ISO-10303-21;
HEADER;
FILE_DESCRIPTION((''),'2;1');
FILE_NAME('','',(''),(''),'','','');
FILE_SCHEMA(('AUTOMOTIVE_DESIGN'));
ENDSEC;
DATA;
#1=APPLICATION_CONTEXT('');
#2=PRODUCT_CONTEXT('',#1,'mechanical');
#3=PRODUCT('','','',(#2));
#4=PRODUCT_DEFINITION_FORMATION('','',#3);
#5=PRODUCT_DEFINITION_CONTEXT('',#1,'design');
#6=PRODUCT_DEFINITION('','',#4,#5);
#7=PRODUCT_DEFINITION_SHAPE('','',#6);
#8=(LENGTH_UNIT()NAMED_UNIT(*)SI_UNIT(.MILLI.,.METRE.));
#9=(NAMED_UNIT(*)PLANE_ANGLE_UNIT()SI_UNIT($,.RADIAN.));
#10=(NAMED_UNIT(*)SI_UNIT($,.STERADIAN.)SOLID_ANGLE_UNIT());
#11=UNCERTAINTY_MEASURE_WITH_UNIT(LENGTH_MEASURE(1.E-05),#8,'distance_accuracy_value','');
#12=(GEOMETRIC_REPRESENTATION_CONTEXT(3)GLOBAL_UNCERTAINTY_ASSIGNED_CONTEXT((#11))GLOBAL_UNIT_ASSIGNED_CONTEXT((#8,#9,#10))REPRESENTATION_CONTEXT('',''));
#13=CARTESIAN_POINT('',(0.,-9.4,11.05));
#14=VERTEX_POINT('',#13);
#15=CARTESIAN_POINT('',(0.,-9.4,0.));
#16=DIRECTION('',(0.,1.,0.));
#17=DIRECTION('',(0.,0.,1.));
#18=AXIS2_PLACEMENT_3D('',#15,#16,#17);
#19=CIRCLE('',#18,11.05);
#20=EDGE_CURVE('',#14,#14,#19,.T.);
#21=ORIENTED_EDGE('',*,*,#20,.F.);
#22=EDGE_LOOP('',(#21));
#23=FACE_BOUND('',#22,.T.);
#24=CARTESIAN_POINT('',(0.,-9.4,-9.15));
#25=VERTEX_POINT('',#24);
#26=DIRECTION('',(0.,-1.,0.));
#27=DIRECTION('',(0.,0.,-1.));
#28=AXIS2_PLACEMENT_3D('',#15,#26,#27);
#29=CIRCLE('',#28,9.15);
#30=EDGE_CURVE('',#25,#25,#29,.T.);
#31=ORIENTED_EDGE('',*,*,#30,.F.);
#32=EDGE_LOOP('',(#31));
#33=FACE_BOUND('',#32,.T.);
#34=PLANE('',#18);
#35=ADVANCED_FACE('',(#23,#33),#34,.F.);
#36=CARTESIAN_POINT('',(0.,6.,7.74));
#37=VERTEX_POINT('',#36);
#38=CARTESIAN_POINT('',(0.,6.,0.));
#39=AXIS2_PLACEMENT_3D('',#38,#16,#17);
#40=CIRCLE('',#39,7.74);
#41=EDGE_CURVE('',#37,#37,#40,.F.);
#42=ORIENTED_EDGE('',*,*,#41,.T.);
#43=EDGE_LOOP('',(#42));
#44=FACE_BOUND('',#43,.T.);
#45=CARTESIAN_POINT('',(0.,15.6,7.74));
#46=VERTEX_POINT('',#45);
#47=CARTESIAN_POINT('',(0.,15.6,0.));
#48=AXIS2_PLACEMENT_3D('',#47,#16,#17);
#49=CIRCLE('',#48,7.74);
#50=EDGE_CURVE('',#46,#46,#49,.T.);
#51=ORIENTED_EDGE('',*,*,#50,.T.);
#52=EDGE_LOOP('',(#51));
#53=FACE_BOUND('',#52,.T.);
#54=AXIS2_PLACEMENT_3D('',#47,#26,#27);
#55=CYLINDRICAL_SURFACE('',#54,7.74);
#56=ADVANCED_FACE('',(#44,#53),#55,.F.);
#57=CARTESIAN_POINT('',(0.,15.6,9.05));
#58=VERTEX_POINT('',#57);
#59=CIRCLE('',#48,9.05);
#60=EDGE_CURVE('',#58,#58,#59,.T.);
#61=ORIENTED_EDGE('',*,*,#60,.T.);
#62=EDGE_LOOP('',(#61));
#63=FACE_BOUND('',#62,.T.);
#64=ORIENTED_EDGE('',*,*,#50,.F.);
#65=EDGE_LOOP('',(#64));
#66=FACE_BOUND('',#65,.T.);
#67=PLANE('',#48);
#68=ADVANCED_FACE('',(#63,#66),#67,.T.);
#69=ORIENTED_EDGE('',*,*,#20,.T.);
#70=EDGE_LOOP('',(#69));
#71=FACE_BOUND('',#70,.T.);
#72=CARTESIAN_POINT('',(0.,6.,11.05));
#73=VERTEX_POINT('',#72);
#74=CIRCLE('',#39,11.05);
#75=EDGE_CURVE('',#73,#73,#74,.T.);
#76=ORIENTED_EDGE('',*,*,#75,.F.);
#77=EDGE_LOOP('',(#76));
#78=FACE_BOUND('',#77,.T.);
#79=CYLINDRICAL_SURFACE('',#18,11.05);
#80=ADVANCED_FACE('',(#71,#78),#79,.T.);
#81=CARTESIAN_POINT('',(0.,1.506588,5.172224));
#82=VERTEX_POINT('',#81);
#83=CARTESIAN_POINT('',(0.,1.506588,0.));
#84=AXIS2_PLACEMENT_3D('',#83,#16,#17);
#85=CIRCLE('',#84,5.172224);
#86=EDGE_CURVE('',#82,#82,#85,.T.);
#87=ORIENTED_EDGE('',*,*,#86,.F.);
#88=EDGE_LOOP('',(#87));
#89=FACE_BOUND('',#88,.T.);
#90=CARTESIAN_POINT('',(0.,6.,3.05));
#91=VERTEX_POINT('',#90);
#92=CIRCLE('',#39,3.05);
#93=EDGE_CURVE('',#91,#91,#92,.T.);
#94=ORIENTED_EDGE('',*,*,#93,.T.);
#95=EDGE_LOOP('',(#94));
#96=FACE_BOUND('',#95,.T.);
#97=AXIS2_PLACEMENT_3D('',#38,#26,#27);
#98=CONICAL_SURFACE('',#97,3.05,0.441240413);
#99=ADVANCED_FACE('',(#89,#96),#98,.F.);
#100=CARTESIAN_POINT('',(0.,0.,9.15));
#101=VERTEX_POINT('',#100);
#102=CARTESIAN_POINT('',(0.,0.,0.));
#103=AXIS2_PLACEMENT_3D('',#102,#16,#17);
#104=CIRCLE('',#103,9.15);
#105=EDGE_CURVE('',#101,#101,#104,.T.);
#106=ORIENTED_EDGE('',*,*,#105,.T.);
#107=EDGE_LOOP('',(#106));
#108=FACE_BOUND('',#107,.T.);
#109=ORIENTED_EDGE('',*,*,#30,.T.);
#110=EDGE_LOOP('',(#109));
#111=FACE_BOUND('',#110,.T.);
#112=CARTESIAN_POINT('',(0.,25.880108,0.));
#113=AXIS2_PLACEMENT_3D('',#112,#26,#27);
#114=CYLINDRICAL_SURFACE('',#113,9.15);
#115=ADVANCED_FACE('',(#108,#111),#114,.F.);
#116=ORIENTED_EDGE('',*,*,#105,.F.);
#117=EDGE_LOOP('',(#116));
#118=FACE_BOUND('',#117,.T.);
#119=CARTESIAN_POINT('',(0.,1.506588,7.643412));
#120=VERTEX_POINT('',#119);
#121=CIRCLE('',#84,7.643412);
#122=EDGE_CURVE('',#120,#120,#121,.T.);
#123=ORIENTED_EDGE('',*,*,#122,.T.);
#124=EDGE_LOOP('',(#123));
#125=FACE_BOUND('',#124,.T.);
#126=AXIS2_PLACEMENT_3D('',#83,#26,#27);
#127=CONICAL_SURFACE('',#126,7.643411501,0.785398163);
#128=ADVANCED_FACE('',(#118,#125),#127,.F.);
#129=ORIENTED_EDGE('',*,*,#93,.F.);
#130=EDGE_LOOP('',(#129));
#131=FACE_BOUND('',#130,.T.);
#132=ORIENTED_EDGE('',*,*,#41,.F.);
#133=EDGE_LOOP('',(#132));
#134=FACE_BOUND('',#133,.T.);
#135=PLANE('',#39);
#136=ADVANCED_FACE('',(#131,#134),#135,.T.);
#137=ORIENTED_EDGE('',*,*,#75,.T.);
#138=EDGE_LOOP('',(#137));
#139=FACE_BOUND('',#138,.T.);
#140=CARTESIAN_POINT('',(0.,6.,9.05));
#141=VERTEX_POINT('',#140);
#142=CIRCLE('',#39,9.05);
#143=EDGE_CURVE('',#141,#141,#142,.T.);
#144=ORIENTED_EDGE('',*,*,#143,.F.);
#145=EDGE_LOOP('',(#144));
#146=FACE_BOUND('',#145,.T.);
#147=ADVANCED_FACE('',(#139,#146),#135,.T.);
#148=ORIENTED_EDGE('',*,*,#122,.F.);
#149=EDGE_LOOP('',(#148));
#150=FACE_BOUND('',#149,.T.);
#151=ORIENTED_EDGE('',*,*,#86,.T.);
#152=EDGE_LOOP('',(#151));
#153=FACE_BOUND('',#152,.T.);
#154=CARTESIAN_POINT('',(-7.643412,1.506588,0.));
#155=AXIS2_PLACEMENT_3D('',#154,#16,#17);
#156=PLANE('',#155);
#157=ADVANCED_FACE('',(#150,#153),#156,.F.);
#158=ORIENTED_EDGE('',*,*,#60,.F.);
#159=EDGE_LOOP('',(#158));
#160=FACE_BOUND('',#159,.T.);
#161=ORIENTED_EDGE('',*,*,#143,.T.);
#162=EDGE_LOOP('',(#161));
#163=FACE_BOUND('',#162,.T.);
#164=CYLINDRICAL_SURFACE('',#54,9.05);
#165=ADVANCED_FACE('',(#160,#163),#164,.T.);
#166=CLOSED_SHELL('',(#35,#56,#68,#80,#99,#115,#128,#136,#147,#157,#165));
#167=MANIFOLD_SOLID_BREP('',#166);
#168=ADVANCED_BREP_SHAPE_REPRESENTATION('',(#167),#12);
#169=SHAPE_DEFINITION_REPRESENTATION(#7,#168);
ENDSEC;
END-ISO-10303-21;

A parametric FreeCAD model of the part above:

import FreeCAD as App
import Part
import Sketcher

V = App.Vector
Q = App.Units.Quantity

doc = App.newDocument("Part")
body = doc.addObject("PartDesign::Body", "Body")

# Sketch on XZ plane
sketch1 = doc.addObject("Sketcher::SketchObject", "Sketch")
body.addObject(sketch1)
sketch1.AttachmentSupport = (doc.XZ_Plane, [""])
sketch1.MapMode = "FlatFace"
sketch1.addGeometry([
    Part.Circle(V(0, 0, 0), V(0, 0, 1), 11.05),
    Part.Circle(V(0, 0, 0), V(0, 0, 1), 9.05),
], False)
sketch1.addConstraint([
    Sketcher.Constraint("Coincident", 0, 3, -1, 1),
    Sketcher.Constraint("Coincident", 1, 3, -1, 1),
    Sketcher.Constraint("Diameter", 0, Q("22.1 mm")),
    Sketcher.Constraint("Diameter", 1, Q("18.1 mm")),
])
pad1 = doc.addObject("PartDesign::Pad", "Pad")
body.addObject(pad1)
pad1.Profile = sketch1
pad1.Length = 9.4

# Sketch on XZ plane
sketch2 = doc.addObject("Sketcher::SketchObject", "Sketch001")
body.addObject(sketch2)
sketch2.AttachmentSupport = (doc.XZ_Plane, [""])
sketch2.MapMode = "FlatFace"
sketch2.addGeometry(Part.Circle(V(0, 0, 0), V(0, 0, 1), 11.05), False)
sketch2.addConstraint([
    Sketcher.Constraint("Coincident", 0, 3, -1, 1),
    Sketcher.Constraint("Diameter", 0, Q("22.1 mm")),
])
pad2 = doc.addObject("PartDesign::Pad", "Pad001")
body.addObject(pad2)
pad2.Profile = sketch2
pad2.Length = 6
pad2.Reversed = True

# Sketch on XZ plane
sketch3 = doc.addObject("Sketcher::SketchObject", "Sketch002")
body.addObject(sketch3)
sketch3.AttachmentSupport = (doc.XZ_Plane, [""])
sketch3.MapMode = "FlatFace"
sketch3.AttachmentOffset = App.Placement(V(0, 0, -6), App.Rotation())
sketch3.addGeometry([
    Part.Circle(V(0, 0, 0), V(0, 0, 1), 9.05),
    Part.Circle(V(0, 0, 0), V(0, 0, 1), 7.74),
], False)
sketch3.addConstraint([
    Sketcher.Constraint("Coincident", 0, 3, -1, 1),
    Sketcher.Constraint("Coincident", 1, 3, -1, 1),
    Sketcher.Constraint("Diameter", 0, Q("18.1 mm")),
    Sketcher.Constraint("Diameter", 1, Q("15.48 mm")),
])
pad3 = doc.addObject("PartDesign::Pad", "Pad002")
body.addObject(pad3)
pad3.Profile = sketch3
pad3.Length = 9.6
pad3.Reversed = True

# Sketch on XZ plane
sketch4 = doc.addObject("Sketcher::SketchObject", "Sketch003")
body.addObject(sketch4)
sketch4.AttachmentSupport = (doc.XZ_Plane, [""])
sketch4.MapMode = "FlatFace"
sketch4.AttachmentOffset = App.Placement(V(0, 0, -6), App.Rotation())
sketch4.addGeometry(Part.Circle(V(0, 0, 0), V(0, 0, 1), 3.05), False)
sketch4.addConstraint([
    Sketcher.Constraint("Coincident", 0, 3, -1, 1),
    Sketcher.Constraint("Diameter", 0, Q("6.1 mm")),
])
pocket1 = doc.addObject("PartDesign::Pocket", "Pocket")
body.addObject(pocket1)
pocket1.Profile = sketch4
pocket1.Length = 9.6
pocket1.Reversed = True

# Sketch on XZ plane
sketch5 = doc.addObject("Sketcher::SketchObject", "Sketch004")
body.addObject(sketch5)
sketch5.AttachmentSupport = (doc.XZ_Plane, [""])
sketch5.MapMode = "FlatFace"
sketch5.AttachmentOffset = App.Placement(V(0, 0, 9.4), App.Rotation())
sketch5.addGeometry(Part.Circle(V(0, 0, 0), V(0, 0, 1), 9.15), False)
sketch5.addConstraint([
    Sketcher.Constraint("Coincident", 0, 3, -1, 1),
    Sketcher.Constraint("Diameter", 0, Q("18.3 mm")),
])
pocket2 = doc.addObject("PartDesign::Pocket", "Pocket001")
body.addObject(pocket2)
pocket2.Profile = sketch5
pocket2.Length = 9.4

# Sketch on XY plane
sketch6 = doc.addObject("Sketcher::SketchObject", "Sketch005")
body.addObject(sketch6)
sketch6.AttachmentSupport = (doc.XY_Plane, [""])
sketch6.MapMode = "FlatFace"
sketch6.addGeometry([
    Part.LineSegment(V(-7.643412, 1.506588, 0), V(-9.15, 0, 0)),  # 0
    Part.LineSegment(V(-9.15, 0, 0), V(0, 0, 0)),  # 1
    Part.LineSegment(V(0, 0, 0), V(0, 6, 0)),  # 2
    Part.LineSegment(V(0, 6, 0), V(-3.05, 6, 0)),  # 3
    Part.LineSegment(V(-3.05, 6, 0), V(-5.172224, 1.506588, 0)),  # 4
    Part.LineSegment(V(-5.172224, 1.506588, 0), V(-7.643412, 1.506588, 0)),  # 5
], False)
sketch6.addConstraint([
    Sketcher.Constraint("Coincident", 0, 2, 1, 1),
    Sketcher.Constraint("Coincident", 1, 2, 2, 1),
    Sketcher.Constraint("Coincident", 2, 2, 3, 1),
    Sketcher.Constraint("Coincident", 3, 2, 4, 1),
    Sketcher.Constraint("Coincident", 4, 2, 5, 1),
    Sketcher.Constraint("Coincident", 5, 2, 0, 1),
    Sketcher.Constraint("Horizontal", 1),
    Sketcher.Constraint("Vertical", 2),
    Sketcher.Constraint("Horizontal", 3),
    Sketcher.Constraint("Horizontal", 5),
    Sketcher.Constraint("Coincident", 1, 2, -1, 1),
    Sketcher.Constraint("DistanceY", 2, 1, 2, 2, Q("6 mm")),
    Sketcher.Constraint("Angle", 0, Q("-135 deg")),
    Sketcher.Constraint("DistanceX", 1, 1, 1, 2, Q("9.15 mm")),
    Sketcher.Constraint("DistanceX", 3, 2, 3, 1, Q("3.05 mm")),
    Sketcher.Constraint("DistanceX", 5, 2, 5, 1, Q("2.471188 mm")),
    Sketcher.Constraint("DistanceY", -1, 1, 4, 2, Q("1.506588 mm")),
])
groove = doc.addObject("PartDesign::Groove", "Groove")
body.addObject(groove)
groove.Profile = sketch6
groove.ReferenceAxis = (sketch6, ["V_Axis"])
groove.Angle = 360

doc.recompute()
